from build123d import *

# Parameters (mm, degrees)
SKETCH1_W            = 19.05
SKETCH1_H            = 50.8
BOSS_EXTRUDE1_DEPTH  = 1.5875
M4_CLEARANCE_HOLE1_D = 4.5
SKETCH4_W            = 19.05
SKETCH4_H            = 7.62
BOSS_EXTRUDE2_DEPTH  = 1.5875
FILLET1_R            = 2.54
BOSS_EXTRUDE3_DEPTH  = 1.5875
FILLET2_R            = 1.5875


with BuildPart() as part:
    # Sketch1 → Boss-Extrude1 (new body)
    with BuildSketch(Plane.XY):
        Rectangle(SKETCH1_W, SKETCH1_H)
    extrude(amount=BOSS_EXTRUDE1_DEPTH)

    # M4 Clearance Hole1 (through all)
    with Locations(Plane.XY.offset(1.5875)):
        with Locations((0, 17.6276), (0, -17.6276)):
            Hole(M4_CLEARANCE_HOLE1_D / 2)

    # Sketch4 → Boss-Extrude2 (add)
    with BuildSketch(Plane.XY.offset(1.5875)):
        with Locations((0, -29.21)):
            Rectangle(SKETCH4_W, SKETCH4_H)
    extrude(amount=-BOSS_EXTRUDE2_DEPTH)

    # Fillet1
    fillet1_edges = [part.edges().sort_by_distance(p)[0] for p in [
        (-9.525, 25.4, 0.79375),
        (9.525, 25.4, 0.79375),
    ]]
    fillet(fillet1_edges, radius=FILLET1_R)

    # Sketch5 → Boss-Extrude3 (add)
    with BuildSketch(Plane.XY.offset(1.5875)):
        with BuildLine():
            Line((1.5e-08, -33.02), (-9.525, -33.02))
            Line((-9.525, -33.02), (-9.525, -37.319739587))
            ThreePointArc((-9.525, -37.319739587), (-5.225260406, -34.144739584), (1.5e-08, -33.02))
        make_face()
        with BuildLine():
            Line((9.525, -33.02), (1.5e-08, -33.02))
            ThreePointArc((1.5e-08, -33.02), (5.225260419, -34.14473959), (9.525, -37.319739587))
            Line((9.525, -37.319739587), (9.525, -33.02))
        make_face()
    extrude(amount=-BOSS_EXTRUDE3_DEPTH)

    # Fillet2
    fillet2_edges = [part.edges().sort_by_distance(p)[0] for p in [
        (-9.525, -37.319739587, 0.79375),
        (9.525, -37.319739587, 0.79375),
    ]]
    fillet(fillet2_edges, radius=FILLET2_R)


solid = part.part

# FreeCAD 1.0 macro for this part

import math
import FreeCAD as App
import Part
import Sketcher
from FreeCAD import Vector
Q = App.Units.Quantity


def edges_at(feature, points):
    """Names of the edges that pass closest to the given points."""
    edges = feature.Shape.Edges
    near = lambda p: min(range(len(edges)), key=lambda i: edges[i].distToShape(Part.Vertex(*p))[0])
    return sorted({f"Edge{near(p) + 1}" for p in points})


def add_polygon(sketch, points):
    """Adds a closed chain of lines whose ends are joined by coincident constraints."""
    first, n = sketch.GeometryCount, len(points)
    for a, b in zip(points, points[1:] + points[:1]):
        sketch.addGeometry(Part.LineSegment(App.Vector(*a, 0), App.Vector(*b, 0)), False)
    for i in range(n):
        sketch.addConstraint(Sketcher.Constraint("Coincident", first + i, 2, first + (i + 1) % n, 1))

doc = App.newDocument("Part")
body = doc.addObject("PartDesign::Body", "Body")

# Sketch on XY plane
sketch1 = body.newObject("Sketcher::SketchObject", "Sketch")
sketch1.AttachmentSupport = (doc.getObject("XY_Plane"), [""])
sketch1.MapMode = "FlatFace"
add_polygon(sketch1, [(-10, 25), (-10, -25), (10, -25), (10, 25)])  # lines 0-3
sketch1.addConstraint(Sketcher.Constraint("Vertical", 0))
sketch1.addConstraint(Sketcher.Constraint("Horizontal", 1))
sketch1.addConstraint(Sketcher.Constraint("Vertical", 2))
sketch1.addConstraint(Sketcher.Constraint("Horizontal", 3))
sketch1.addConstraint(Sketcher.Constraint("Symmetric", 0, 2, 2, 2, -1, 1))
sketch1.addConstraint(Sketcher.Constraint("DistanceY", 0, 2, 0, 1, Q("2 in")))
sketch1.addConstraint(Sketcher.Constraint("DistanceX", 1, 1, 1, 2, Q("0.75 in")))
pad1 = body.newObject("PartDesign::Pad", "Pad")
pad1.Profile = sketch1
pad1.Length = Q("0.0625 in")

# Sketch on XY plane
sketch2 = body.newObject("Sketcher::SketchObject", "Sketch001")
sketch2.AttachmentSupport = (doc.getObject("XY_Plane"), [""])
sketch2.MapMode = "FlatFace"
sketch2.AttachmentOffset = App.Placement(Vector(0, 0, 0.0625 * 25.4), App.Rotation())
sketch2.addGeometry(Part.Circle(Vector(0, 17.6, 0), Vector(0, 0, 1), 2.2), False)
sketch2.addGeometry(Part.Circle(Vector(0, -17.6, 0), Vector(0, 0, 1), 2.2), False)
sketch2.addConstraint(Sketcher.Constraint("Equal", 0, 1))
sketch2.addConstraint(Sketcher.Constraint("Symmetric", 0, 3, 1, 3, -1, 1))
sketch2.addConstraint(Sketcher.Constraint("PointOnObject", 0, 3, -2))
sketch2.addConstraint(Sketcher.Constraint("Diameter", 0, Q("4.5 mm")))
sketch2.addConstraint(Sketcher.Constraint("DistanceY", -1, 1, 0, 3, Q("0.694 in")))
doc.recompute()
hole = body.newObject("PartDesign::Hole", "Hole")
hole.Profile = sketch2
hole.ThreadType = "None"
hole.Diameter = 4.5
hole.DepthType = "ThroughAll"

# Sketch on XY plane
sketch3 = body.newObject("Sketcher::SketchObject", "Sketch002")
sketch3.AttachmentSupport = (doc.getObject("XY_Plane"), [""])
sketch3.MapMode = "FlatFace"
sketch3.AttachmentOffset = App.Placement(Vector(0, 0, 0.0625 * 25.4), App.Rotation())
add_polygon(sketch3, [(-10, -25), (-10, -33), (10, -33), (10, -25)])  # lines 0-3
sketch3.addConstraint(Sketcher.Constraint("Vertical", 0))
sketch3.addConstraint(Sketcher.Constraint("Horizontal", 1))
sketch3.addConstraint(Sketcher.Constraint("Vertical", 2))
sketch3.addConstraint(Sketcher.Constraint("Horizontal", 3))
sketch3.addConstraint(Sketcher.Constraint("DistanceY", 0, 2, 0, 1, Q("0.3 in")))
sketch3.addConstraint(Sketcher.Constraint("DistanceY", 2, 2, -1, 1, Q("1 in")))
sketch3.addConstraint(Sketcher.Constraint("DistanceX", 1, 1, 1, 2, Q("0.75 in")))
sketch3.addConstraint(Sketcher.Constraint("DistanceX", 0, 2, -1, 1, Q("0.375 in")))
pad2 = body.newObject("PartDesign::Pad", "Pad001")
pad2.Profile = sketch3
pad2.Length = Q("0.0625 in")
pad2.Reversed = True
doc.recompute()

fillet = body.newObject("PartDesign::Fillet", "Fillet")
fillet.Base = (pad2, edges_at(pad2, [(-9.525, 25.4, 0.794), (9.525, 25.4, 0.794)]))
fillet.Radius = Q("0.1 in")

# Sketch on XY plane
sketch4 = body.newObject("Sketcher::SketchObject", "Sketch003")
sketch4.AttachmentSupport = (doc.getObject("XY_Plane"), [""])
sketch4.MapMode = "FlatFace"
sketch4.AttachmentOffset = App.Placement(Vector(0, 0, 0.0625 * 25.4), App.Rotation())
sketch4.addGeometry(Part.LineSegment(Vector(0, -33, 0), Vector(-9.5, -33, 0)), False)
sketch4.addGeometry(Part.LineSegment(Vector(-9.5, -33, 0), Vector(-9.5, -37.3, 0)), False)
sketch4.addGeometry(Part.ArcOfCircle(Part.Circle(Vector(0, -45.7, 0), Vector(0, 0, 1), 12.7), math.radians(90), math.radians(139)), False)
sketch4.addGeometry(Part.LineSegment(Vector(9.5, -33, 0), Vector(0, -33, 0)), False)
sketch4.addGeometry(Part.ArcOfCircle(Part.Circle(Vector(0, -45.7, 0), Vector(0, 0, 1), 12.7), math.radians(41), math.radians(90)), False)
sketch4.addGeometry(Part.LineSegment(Vector(9.5, -37.3, 0), Vector(9.5, -33, 0)), False)
sketch4.addConstraint(Sketcher.Constraint("Coincident", 0, 2, 1, 1))
sketch4.addConstraint(Sketcher.Constraint("Coincident", 1, 2, 2, 2))
sketch4.addConstraint(Sketcher.Constraint("Tangent", 2, 1, 0, 1))
sketch4.addConstraint(Sketcher.Constraint("Tangent", 3, 2, 4, 2))
sketch4.addConstraint(Sketcher.Constraint("Coincident", 4, 1, 5, 1))
sketch4.addConstraint(Sketcher.Constraint("Coincident", 5, 2, 3, 1))
sketch4.addConstraint(Sketcher.Constraint("Horizontal", 0))
sketch4.addConstraint(Sketcher.Constraint("Vertical", 1))
sketch4.addConstraint(Sketcher.Constraint("Horizontal", 3))
sketch4.addConstraint(Sketcher.Constraint("Vertical", 5))
sketch4.addConstraint(Sketcher.Constraint("Coincident", 4, 3, 2, 3))
sketch4.addConstraint(Sketcher.Constraint("Equal", 2, 4))
sketch4.addConstraint(Sketcher.Constraint("Symmetric", 1, 2, 4, 1, -2))
sketch4.addConstraint(Sketcher.Constraint("Radius", 2, Q("0.5 in")))
sketch4.addConstraint(Sketcher.Constraint("DistanceY", 2, 3, -1, 1, Q("1.8 in")))
sketch4.addConstraint(Sketcher.Constraint("DistanceX", 0, 2, 0, 1, Q("0.375 in")))
pad3 = body.newObject("PartDesign::Pad", "Pad002")
pad3.Profile = sketch4
pad3.Length = Q("0.0625 in")
pad3.Reversed = True
doc.recompute()

fillet2 = body.newObject("PartDesign::Fillet", "Fillet001")
fillet2.Base = (pad3, edges_at(pad3, [(-9.525, -37.32, 0.794), (9.525, -37.32, 0.794)]))
fillet2.Radius = Q("0.0625 in")

doc.recompute()
